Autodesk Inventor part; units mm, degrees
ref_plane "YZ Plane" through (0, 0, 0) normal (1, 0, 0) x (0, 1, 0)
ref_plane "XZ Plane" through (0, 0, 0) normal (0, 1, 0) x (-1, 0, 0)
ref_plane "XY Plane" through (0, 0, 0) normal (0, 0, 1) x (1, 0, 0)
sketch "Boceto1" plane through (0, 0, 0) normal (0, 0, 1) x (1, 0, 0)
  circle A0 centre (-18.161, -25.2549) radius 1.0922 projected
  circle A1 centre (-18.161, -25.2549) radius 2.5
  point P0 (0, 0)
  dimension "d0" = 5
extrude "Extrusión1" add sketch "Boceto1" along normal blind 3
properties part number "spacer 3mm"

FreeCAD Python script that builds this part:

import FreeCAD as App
import Part
import Sketcher

V = App.Vector

doc = App.newDocument("Part")
body = doc.addObject("PartDesign::Body", "Body")

sketch1 = doc.addObject("Sketcher::SketchObject", "Sketch")
body.addObject(sketch1)
sketch1.AttachmentSupport = (doc.XY_Plane, [""])
sketch1.MapMode = "FlatFace"
sketch1.addGeometry([
    Part.Circle(V(-18.2, -25.3, 0), V(0, 0, 1), 2.5),
    Part.Circle(V(-18.2, -25.3, 0), V(0, 0, 1), 1.1),
], False)
sketch1.addConstraint([
    Sketcher.Constraint("Coincident", 1, 3, 0, 3),
    Sketcher.Constraint("Diameter", 0, 5.0),
    Sketcher.Constraint("Diameter", 1, 2.1844),
    Sketcher.Constraint("DistanceX", 0, 3, -1, 1, 18.161),
    Sketcher.Constraint("DistanceY", 0, 3, -1, 1, 25.255),
])
pad1 = doc.addObject("PartDesign::Pad", "Pad")
body.addObject(pad1)
pad1.Profile = sketch1
pad1.Length = 3

doc.recompute()
